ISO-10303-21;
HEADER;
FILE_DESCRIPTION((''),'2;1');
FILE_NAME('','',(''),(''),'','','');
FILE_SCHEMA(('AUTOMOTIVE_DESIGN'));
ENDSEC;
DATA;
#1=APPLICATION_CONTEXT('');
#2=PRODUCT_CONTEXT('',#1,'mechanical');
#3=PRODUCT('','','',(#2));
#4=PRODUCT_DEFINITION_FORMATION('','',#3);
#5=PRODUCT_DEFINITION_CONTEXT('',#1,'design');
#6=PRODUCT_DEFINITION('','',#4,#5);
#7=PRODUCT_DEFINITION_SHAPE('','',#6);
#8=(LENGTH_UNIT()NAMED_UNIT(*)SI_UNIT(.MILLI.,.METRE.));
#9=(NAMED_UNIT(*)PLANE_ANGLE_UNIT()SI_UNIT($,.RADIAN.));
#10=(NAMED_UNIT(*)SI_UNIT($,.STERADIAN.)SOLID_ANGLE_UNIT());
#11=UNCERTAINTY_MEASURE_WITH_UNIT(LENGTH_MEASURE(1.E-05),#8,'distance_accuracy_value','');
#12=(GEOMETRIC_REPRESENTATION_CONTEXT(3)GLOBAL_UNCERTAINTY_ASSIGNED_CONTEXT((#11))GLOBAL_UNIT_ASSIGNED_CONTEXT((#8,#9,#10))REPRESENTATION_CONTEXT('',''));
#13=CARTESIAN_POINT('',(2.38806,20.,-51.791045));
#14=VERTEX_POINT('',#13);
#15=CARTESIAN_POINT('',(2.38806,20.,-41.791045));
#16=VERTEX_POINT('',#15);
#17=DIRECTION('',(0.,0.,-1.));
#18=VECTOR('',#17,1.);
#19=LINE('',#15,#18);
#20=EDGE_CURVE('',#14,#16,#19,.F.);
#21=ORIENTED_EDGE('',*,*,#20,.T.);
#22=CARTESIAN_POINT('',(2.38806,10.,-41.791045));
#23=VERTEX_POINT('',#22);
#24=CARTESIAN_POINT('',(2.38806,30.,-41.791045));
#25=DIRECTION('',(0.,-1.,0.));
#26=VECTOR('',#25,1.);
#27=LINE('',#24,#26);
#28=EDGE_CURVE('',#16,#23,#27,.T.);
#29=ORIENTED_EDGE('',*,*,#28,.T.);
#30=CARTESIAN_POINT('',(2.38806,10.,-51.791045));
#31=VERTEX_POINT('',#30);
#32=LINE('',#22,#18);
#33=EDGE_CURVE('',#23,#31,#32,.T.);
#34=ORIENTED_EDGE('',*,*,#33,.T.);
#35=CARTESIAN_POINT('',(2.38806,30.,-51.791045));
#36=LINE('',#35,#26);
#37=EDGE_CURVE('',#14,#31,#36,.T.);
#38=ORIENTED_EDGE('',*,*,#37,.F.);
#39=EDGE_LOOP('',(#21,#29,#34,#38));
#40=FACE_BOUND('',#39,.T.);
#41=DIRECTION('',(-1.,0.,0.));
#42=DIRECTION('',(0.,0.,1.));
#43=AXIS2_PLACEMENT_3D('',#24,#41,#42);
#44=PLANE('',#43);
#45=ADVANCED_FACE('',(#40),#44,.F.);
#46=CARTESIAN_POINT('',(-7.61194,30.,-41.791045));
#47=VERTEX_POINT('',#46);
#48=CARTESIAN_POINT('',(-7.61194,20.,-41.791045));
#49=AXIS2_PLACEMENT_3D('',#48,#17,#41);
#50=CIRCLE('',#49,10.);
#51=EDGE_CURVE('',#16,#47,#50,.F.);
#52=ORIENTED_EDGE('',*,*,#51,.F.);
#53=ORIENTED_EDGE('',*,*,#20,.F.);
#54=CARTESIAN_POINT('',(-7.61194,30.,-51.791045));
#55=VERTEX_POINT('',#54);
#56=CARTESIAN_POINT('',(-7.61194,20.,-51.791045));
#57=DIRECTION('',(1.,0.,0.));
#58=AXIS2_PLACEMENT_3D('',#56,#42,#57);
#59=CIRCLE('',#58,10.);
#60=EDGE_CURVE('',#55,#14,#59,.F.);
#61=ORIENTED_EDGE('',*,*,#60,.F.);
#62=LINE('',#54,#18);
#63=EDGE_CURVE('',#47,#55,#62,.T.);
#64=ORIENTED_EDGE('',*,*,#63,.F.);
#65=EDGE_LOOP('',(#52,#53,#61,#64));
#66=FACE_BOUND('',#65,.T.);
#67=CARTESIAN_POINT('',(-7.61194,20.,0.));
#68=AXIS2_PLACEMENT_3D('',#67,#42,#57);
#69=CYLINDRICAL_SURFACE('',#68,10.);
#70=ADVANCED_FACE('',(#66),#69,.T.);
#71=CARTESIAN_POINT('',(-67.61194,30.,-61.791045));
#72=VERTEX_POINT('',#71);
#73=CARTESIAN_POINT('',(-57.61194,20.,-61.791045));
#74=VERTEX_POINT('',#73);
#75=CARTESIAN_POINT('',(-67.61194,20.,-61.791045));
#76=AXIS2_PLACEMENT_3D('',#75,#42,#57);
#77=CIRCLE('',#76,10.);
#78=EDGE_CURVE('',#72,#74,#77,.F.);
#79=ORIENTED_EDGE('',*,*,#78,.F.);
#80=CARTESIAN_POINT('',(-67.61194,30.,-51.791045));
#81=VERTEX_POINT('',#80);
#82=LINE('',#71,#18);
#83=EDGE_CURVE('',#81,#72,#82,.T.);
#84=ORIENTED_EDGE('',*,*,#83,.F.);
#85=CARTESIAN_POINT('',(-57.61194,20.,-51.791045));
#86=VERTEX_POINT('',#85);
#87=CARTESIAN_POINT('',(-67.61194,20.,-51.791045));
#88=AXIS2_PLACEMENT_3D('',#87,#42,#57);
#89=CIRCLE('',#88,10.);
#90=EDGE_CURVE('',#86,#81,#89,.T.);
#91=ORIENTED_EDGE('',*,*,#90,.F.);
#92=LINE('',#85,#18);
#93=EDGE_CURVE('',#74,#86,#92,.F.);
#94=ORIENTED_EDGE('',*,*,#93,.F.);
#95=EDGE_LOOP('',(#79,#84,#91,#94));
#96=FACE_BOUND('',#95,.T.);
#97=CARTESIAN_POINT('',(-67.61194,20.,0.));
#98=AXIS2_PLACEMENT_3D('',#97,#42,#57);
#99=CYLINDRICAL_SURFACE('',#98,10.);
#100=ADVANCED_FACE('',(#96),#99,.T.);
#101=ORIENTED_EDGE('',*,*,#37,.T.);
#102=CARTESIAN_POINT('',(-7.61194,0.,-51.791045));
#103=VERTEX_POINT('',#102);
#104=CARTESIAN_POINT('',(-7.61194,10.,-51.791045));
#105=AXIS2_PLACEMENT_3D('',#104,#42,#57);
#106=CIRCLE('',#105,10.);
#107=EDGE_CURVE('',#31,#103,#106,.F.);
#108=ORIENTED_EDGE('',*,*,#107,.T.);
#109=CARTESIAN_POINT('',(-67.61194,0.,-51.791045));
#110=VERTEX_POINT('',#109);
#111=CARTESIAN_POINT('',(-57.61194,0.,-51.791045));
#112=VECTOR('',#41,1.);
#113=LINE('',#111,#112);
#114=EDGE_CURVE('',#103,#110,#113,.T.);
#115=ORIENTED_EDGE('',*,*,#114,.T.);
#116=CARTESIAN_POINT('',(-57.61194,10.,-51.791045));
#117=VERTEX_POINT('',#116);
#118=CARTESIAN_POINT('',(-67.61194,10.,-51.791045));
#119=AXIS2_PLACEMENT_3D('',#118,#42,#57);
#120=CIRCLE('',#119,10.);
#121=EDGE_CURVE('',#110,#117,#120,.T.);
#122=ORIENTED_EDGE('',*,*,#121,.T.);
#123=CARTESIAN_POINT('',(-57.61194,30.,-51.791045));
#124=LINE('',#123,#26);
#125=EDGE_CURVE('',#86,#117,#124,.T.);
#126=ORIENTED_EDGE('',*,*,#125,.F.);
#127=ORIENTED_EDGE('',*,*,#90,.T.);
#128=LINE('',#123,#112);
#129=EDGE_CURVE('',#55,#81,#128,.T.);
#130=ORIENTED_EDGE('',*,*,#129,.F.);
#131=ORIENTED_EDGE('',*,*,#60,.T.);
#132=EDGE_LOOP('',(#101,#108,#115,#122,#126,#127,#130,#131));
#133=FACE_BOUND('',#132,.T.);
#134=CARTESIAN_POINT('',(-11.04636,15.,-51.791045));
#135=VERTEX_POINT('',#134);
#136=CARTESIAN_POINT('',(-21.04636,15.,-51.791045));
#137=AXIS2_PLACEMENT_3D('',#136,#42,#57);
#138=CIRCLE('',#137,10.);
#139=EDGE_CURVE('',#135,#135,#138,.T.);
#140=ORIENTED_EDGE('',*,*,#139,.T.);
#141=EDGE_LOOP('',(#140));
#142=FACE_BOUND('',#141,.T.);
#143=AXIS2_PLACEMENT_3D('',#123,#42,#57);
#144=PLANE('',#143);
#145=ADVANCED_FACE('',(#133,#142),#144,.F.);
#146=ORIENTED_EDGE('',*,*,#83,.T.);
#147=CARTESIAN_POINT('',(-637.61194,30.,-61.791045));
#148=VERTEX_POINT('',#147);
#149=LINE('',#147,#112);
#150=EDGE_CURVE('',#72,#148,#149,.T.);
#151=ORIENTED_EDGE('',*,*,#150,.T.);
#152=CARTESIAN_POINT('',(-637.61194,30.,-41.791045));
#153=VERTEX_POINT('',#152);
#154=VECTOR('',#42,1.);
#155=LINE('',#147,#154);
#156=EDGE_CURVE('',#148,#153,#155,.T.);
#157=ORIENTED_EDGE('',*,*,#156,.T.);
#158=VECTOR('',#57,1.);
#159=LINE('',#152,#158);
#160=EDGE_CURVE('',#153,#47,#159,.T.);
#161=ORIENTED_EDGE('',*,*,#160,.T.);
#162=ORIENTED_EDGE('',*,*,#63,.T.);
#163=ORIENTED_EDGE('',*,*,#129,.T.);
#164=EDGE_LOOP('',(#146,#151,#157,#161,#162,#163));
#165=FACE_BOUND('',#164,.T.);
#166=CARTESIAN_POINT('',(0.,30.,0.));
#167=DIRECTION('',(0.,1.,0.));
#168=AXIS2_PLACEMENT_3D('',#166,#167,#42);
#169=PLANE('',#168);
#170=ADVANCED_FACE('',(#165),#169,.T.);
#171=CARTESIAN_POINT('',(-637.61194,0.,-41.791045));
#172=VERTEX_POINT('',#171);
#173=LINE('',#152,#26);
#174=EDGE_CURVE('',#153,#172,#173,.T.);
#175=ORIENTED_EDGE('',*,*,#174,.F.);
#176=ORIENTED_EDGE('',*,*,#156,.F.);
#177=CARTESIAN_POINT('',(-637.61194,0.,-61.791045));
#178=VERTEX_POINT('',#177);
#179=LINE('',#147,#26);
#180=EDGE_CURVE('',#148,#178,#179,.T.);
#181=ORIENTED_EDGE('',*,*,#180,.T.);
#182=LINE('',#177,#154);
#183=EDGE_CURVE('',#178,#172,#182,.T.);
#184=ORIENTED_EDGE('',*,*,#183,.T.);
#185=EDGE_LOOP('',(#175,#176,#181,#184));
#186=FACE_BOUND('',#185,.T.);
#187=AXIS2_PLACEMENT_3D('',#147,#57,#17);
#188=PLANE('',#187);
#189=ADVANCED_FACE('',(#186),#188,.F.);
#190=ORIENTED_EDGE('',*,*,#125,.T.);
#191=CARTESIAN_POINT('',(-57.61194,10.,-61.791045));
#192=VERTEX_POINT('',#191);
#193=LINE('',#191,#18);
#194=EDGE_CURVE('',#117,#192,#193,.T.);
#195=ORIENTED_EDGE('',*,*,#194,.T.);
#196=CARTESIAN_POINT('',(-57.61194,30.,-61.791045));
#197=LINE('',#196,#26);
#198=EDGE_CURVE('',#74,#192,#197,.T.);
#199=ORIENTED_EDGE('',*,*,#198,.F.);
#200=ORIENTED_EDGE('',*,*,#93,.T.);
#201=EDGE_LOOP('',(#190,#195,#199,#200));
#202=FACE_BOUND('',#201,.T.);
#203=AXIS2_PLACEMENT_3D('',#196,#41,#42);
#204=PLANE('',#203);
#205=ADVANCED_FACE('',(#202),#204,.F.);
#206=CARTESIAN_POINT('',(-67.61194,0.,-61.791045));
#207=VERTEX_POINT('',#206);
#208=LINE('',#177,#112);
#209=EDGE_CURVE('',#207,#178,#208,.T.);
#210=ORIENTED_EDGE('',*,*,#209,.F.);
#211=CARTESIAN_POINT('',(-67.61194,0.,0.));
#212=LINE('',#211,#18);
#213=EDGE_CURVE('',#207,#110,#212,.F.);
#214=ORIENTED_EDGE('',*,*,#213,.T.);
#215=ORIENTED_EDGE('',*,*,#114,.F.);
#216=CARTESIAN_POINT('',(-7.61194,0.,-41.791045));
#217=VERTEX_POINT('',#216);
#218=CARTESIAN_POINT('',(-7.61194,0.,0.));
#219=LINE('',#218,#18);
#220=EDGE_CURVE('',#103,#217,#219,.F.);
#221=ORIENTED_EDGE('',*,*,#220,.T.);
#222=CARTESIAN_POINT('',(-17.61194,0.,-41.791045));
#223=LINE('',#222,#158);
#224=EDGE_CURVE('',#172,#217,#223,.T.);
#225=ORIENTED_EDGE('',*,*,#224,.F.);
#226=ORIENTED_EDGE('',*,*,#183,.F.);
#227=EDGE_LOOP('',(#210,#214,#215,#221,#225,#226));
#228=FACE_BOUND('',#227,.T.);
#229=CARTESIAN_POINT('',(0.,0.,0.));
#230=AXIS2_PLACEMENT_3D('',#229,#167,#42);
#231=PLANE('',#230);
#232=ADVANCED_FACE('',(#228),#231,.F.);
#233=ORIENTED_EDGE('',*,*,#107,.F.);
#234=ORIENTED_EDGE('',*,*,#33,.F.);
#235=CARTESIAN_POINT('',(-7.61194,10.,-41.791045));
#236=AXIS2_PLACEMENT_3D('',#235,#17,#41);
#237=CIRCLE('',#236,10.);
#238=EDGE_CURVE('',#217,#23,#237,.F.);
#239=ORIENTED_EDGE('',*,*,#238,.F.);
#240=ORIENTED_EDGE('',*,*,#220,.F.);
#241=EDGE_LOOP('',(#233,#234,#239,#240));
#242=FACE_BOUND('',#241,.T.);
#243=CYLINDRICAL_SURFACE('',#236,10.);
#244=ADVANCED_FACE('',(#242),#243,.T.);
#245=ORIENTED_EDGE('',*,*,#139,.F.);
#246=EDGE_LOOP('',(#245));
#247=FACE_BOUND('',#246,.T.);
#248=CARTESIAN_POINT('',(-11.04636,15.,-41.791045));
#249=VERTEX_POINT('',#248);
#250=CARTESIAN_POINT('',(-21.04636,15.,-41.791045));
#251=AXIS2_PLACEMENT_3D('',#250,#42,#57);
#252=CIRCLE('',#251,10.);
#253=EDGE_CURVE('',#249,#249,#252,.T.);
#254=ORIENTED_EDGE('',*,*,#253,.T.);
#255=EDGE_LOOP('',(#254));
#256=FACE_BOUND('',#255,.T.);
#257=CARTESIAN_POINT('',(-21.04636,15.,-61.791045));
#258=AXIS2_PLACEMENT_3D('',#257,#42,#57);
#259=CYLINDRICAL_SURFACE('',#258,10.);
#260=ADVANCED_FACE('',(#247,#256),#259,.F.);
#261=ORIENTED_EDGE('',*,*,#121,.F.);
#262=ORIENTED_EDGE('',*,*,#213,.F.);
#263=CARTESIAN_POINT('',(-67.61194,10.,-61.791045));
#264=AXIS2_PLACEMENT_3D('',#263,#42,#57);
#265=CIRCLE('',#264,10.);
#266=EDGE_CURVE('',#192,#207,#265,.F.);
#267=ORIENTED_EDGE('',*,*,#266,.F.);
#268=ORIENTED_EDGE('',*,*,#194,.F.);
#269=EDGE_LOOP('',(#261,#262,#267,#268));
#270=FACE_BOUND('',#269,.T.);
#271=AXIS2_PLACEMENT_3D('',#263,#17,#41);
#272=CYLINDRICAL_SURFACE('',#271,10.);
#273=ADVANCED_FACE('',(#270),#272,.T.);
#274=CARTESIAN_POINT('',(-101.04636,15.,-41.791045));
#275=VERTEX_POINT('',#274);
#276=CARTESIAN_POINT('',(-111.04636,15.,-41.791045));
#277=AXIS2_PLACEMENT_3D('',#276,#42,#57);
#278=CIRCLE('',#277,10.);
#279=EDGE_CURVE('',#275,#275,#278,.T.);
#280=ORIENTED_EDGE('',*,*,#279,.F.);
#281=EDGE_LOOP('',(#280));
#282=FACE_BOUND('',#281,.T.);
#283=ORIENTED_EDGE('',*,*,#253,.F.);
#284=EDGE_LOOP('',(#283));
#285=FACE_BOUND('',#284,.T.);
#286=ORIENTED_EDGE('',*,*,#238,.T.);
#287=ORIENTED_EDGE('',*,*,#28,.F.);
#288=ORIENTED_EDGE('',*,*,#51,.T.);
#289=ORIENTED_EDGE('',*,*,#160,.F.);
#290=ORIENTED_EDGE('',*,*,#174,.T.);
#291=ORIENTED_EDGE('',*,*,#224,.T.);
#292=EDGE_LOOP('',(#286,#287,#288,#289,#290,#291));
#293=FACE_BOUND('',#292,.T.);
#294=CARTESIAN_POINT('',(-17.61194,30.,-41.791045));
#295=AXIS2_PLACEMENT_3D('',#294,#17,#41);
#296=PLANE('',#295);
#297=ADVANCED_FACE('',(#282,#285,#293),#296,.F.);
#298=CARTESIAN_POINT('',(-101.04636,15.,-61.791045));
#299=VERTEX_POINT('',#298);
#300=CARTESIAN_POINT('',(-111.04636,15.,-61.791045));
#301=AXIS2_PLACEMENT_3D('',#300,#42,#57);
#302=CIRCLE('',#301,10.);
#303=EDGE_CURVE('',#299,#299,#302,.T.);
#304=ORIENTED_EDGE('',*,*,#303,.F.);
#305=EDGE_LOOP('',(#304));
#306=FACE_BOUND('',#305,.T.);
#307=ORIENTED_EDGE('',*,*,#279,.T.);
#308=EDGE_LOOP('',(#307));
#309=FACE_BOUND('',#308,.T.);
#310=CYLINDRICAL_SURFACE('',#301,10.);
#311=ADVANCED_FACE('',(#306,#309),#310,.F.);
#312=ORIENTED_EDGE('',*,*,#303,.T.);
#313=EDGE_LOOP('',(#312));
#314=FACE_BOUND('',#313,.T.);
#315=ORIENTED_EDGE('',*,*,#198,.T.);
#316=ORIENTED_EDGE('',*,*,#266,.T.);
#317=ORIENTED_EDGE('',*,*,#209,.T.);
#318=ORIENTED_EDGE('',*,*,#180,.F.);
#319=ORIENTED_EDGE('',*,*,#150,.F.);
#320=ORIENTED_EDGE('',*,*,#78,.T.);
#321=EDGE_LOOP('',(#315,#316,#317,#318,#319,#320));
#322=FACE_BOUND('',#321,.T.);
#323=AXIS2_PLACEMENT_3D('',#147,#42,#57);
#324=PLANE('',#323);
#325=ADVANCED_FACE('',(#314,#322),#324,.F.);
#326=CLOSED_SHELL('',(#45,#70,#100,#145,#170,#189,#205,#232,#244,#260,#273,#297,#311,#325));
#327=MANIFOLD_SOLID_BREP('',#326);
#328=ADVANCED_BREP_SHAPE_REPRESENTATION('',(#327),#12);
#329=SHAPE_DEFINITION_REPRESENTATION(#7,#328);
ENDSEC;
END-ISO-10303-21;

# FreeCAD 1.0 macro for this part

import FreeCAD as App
import Part
import Sketcher

V = App.Vector


def edges_at(feature, points):
    """Names of the edges that pass closest to the given points."""
    edges = feature.Shape.Edges
    near = lambda p: min(range(len(edges)), key=lambda i: edges[i].distToShape(Part.Vertex(*p))[0])
    return sorted({f"Edge{near(p) + 1}" for p in points})

doc = App.newDocument("Part")
body = doc.addObject("PartDesign::Body", "Body")

# Sketch on XZ plane
sketch1 = body.newObject("Sketcher::SketchObject", "Sketch")
sketch1.AttachmentSupport = (doc.getObject("XZ_Plane"), [""])
sketch1.MapMode = "FlatFace"
sketch1.addGeometry([
    Part.LineSegment(V(-58, -62, 0), V(-638, -62, 0)),  # 0
    Part.LineSegment(V(-638, -62, 0), V(-638, -42, 0)),  # 1
    Part.LineSegment(V(-638, -42, 0), V(2, -42, 0)),  # 2
    Part.LineSegment(V(2, -42, 0), V(2, -52, 0)),  # 3
    Part.LineSegment(V(2, -52, 0), V(-58, -52, 0)),  # 4
    Part.LineSegment(V(-58, -52, 0), V(-58, -62, 0)),  # 5
], False)
sketch1.addConstraint([
    Sketcher.Constraint("Coincident", 0, 2, 1, 1),
    Sketcher.Constraint("Coincident", 1, 2, 2, 1),
    Sketcher.Constraint("Coincident", 2, 2, 3, 1),
    Sketcher.Constraint("Coincident", 3, 2, 4, 1),
    Sketcher.Constraint("Coincident", 4, 2, 5, 1),
    Sketcher.Constraint("Coincident", 5, 2, 0, 1),
    Sketcher.Constraint("Horizontal", 0),
    Sketcher.Constraint("Vertical", 1),
    Sketcher.Constraint("Horizontal", 2),
    Sketcher.Constraint("Vertical", 3),
    Sketcher.Constraint("Horizontal", 4),
    Sketcher.Constraint("Vertical", 5),
    Sketcher.Constraint("Equal", 3, 5),
    Sketcher.Constraint("DistanceX", 0, 2, 0, 1, 580.0),
    Sketcher.Constraint("DistanceX", 2, 1, 2, 2, 640.0),
    Sketcher.Constraint("DistanceY", 1, 1, 1, 2, 20.0),
    Sketcher.Constraint("DistanceX", 0, 2, -1, 1, 637.61194),
    Sketcher.Constraint("DistanceY", 0, 2, -1, 1, 61.791045),
])
pad1 = body.newObject("PartDesign::Pad", "Pad")
pad1.Profile = sketch1
pad1.Length = 30
pad1.Reversed = True
doc.recompute()

fillet = body.newObject("PartDesign::Fillet", "Fillet")
fillet.Base = (pad1, edges_at(pad1, [
    (2.388, 30, -46.791),
    (-57.612, 30, -56.791),
    (-57.612, 0, -56.791),
    (2.388, 0, -46.791),
]))
fillet.Radius = 10

# Sketch on XY plane
sketch2 = body.newObject("Sketcher::SketchObject", "Sketch001")
sketch2.AttachmentSupport = (doc.getObject("XY_Plane"), [""])
sketch2.MapMode = "FlatFace"
sketch2.AttachmentOffset = App.Placement(V(0, 0, -41.791045), App.Rotation())
sketch2.addGeometry([
    Part.Circle(V(-21, 15, 0), V(0, 0, 1), 10),
    Part.Circle(V(-111, 15, 0), V(0, 0, 1), 10),
], False)
sketch2.addConstraint([
    Sketcher.Constraint("Equal", 0, 1),
    Sketcher.Constraint("Horizontal", 0, 3, 1, 3),
    Sketcher.Constraint("Diameter", 0, 20.0),
    Sketcher.Constraint("DistanceY", -1, 1, 0, 3, 15.0),
    Sketcher.Constraint("DistanceX", 1, 3, 0, 3, 90.0),
    Sketcher.Constraint("DistanceX", 0, 3, -1, 1, 21.04636),
])
pocket1 = body.newObject("PartDesign::Pocket", "Pocket")
pocket1.Profile = sketch2
pocket1.Type = "ThroughAll"

doc.recompute()
